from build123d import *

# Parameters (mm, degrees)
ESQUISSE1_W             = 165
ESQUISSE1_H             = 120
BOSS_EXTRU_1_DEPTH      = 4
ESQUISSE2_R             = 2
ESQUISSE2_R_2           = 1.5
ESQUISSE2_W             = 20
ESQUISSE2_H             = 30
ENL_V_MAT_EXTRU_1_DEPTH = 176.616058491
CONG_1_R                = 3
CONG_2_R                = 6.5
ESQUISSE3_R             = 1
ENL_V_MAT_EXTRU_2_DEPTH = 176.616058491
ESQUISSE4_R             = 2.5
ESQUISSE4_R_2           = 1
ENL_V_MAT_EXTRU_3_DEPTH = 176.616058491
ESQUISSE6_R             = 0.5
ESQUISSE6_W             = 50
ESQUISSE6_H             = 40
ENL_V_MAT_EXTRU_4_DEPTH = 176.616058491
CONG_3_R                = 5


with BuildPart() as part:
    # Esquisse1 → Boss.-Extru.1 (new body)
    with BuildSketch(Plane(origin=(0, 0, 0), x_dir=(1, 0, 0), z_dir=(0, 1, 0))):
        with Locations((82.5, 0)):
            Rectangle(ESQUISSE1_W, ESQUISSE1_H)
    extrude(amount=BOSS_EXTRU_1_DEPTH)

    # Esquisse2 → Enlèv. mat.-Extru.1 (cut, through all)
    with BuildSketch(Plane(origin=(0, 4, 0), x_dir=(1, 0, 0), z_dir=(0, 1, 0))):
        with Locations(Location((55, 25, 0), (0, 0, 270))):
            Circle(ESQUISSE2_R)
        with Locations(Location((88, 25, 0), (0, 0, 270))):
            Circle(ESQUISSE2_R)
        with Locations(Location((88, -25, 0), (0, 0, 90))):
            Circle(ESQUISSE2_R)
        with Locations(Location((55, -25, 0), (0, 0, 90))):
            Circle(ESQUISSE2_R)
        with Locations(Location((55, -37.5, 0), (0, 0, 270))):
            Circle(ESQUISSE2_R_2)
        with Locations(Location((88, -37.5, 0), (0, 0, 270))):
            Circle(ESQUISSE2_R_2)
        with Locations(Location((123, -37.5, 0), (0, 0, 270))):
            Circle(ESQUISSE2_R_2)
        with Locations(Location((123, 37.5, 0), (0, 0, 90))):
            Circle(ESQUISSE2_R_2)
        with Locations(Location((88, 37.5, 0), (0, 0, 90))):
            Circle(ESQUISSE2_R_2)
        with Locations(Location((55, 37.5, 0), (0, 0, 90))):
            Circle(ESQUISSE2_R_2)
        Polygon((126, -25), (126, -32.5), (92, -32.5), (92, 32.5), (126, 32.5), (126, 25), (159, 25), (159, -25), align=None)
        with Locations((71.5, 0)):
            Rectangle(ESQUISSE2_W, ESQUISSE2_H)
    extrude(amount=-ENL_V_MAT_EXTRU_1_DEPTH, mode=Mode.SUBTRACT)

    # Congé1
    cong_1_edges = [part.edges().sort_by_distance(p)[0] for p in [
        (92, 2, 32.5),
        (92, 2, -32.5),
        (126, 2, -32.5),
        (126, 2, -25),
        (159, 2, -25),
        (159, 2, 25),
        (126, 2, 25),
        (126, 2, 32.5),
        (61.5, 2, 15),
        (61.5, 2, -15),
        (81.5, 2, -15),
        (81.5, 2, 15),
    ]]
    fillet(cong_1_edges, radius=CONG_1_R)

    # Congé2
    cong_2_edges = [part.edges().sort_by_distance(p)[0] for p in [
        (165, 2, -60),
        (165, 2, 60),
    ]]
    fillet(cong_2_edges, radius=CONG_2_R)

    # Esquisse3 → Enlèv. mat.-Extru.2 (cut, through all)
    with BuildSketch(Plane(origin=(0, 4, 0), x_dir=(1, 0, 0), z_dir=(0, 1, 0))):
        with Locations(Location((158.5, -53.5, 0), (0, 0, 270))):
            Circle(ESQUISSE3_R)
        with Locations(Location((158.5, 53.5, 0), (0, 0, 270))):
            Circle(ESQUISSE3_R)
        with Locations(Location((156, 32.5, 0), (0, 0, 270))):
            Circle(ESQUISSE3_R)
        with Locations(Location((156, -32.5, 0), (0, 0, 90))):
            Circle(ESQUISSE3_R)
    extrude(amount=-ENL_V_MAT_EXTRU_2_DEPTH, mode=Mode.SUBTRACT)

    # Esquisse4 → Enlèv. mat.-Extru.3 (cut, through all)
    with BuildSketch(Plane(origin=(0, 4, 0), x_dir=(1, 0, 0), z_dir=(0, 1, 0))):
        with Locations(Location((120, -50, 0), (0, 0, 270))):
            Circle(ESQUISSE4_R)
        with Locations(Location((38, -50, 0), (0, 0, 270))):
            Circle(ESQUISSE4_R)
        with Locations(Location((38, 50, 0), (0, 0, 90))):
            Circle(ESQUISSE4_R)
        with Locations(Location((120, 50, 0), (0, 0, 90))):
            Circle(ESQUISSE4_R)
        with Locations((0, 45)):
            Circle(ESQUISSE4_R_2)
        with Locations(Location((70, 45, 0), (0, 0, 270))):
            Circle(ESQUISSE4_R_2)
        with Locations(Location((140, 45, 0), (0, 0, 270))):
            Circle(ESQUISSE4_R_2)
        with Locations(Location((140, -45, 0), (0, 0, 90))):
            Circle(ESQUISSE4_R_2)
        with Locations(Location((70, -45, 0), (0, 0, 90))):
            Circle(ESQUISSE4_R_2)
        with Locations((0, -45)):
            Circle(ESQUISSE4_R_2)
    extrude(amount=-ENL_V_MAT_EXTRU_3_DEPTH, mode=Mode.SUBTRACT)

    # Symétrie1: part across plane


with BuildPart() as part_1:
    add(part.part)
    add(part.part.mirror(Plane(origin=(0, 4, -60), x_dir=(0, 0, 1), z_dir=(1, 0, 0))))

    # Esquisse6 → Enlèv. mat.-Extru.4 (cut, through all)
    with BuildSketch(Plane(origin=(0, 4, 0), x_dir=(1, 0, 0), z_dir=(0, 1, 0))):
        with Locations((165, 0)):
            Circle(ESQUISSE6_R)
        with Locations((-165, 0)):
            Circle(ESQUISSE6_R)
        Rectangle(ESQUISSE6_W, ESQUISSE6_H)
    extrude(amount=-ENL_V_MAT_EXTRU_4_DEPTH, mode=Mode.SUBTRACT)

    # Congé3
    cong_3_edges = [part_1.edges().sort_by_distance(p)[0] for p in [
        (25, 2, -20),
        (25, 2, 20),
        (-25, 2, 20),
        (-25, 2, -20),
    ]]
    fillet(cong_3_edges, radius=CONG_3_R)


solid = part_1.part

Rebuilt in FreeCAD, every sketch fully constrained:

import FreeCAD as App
import Part
import Sketcher
from FreeCAD import Vector
Q = App.Units.Quantity


def edges_at(feature, points):
    """Names of the edges that pass closest to the given points."""
    edges = feature.Shape.Edges
    near = lambda p: min(range(len(edges)), key=lambda i: edges[i].distToShape(Part.Vertex(*p))[0])
    return sorted({f"Edge{near(p) + 1}" for p in points})

doc = App.newDocument("Part")
body = doc.addObject("PartDesign::Body", "Body")

# Sketch on XZ plane
sketch1 = body.newObject("Sketcher::SketchObject", "Sketch")
sketch1.AttachmentSupport = (doc.getObject("XZ_Plane"), [""])
sketch1.MapMode = "FlatFace"
sketch1.addGeometry(Part.LineSegment(Vector(0, -60, 0), Vector(0, 60, 0)), False)
sketch1.addGeometry(Part.LineSegment(Vector(0, 60, 0), Vector(165, 60, 0)), False)
sketch1.addGeometry(Part.LineSegment(Vector(165, 60, 0), Vector(165, -60, 0)), False)
sketch1.addGeometry(Part.LineSegment(Vector(165, -60, 0), Vector(0, -60, 0)), False)
sketch1.addConstraint(Sketcher.Constraint("Coincident", 0, 2, 1, 1))
sketch1.addConstraint(Sketcher.Constraint("Coincident", 1, 2, 2, 1))
sketch1.addConstraint(Sketcher.Constraint("Coincident", 2, 2, 3, 1))
sketch1.addConstraint(Sketcher.Constraint("Coincident", 3, 2, 0, 1))
sketch1.addConstraint(Sketcher.Constraint("Vertical", 0))
sketch1.addConstraint(Sketcher.Constraint("Horizontal", 1))
sketch1.addConstraint(Sketcher.Constraint("Vertical", 2))
sketch1.addConstraint(Sketcher.Constraint("Horizontal", 3))
sketch1.addConstraint(Sketcher.Constraint("Symmetric", 0, 2, 3, 2, -1, 1))
sketch1.addConstraint(Sketcher.Constraint("DistanceX", 1, 1, 1, 2, Q("165 mm")))
sketch1.addConstraint(Sketcher.Constraint("DistanceY", 0, 1, 0, 2, Q("120 mm")))
pad1 = body.newObject("PartDesign::Pad", "Pad")
pad1.Profile = sketch1
pad1.Length = 4
pad1.Reversed = True

# Sketch on XZ plane
sketch2 = body.newObject("Sketcher::SketchObject", "Sketch001")
sketch2.AttachmentSupport = (doc.getObject("XZ_Plane"), [""])
sketch2.MapMode = "FlatFace"
sketch2.AttachmentOffset = App.Placement(Vector(0, 0, -4), App.Rotation())
sketch2.addGeometry(Part.Circle(Vector(55, -25, 0), Vector(0, 0, 1), 2), False)
sketch2.addGeometry(Part.Circle(Vector(88, -25, 0), Vector(0, 0, 1), 2), False)
sketch2.addGeometry(Part.Circle(Vector(88, 25, 0), Vector(0, 0, 1), 2), False)
sketch2.addGeometry(Part.Circle(Vector(55, 25, 0), Vector(0, 0, 1), 2), False)
sketch2.addGeometry(Part.Circle(Vector(55, 37.5, 0), Vector(0, 0, 1), 1.5), False)
sketch2.addGeometry(Part.Circle(Vector(88, 37.5, 0), Vector(0, 0, 1), 1.5), False)
sketch2.addGeometry(Part.Circle(Vector(123, 37.5, 0), Vector(0, 0, 1), 1.5), False)
sketch2.addGeometry(Part.Circle(Vector(123, -37.5, 0), Vector(0, 0, 1), 1.5), False)
sketch2.addGeometry(Part.Circle(Vector(88, -37.5, 0), Vector(0, 0, 1), 1.5), False)
sketch2.addGeometry(Part.Circle(Vector(55, -37.5, 0), Vector(0, 0, 1), 1.5), False)
sketch2.addGeometry(Part.LineSegment(Vector(126, 32.5, 0), Vector(126, 25, 0)), False)
sketch2.addGeometry(Part.LineSegment(Vector(126, 25, 0), Vector(159, 25, 0)), False)
sketch2.addGeometry(Part.LineSegment(Vector(159, 25, 0), Vector(159, -25, 0)), False)
sketch2.addGeometry(Part.LineSegment(Vector(159, -25, 0), Vector(126, -25, 0)), False)
sketch2.addGeometry(Part.LineSegment(Vector(126, -25, 0), Vector(126, -32.5, 0)), False)
sketch2.addGeometry(Part.LineSegment(Vector(126, -32.5, 0), Vector(92, -32.5, 0)), False)
sketch2.addGeometry(Part.LineSegment(Vector(92, -32.5, 0), Vector(92, 32.5, 0)), False)
sketch2.addGeometry(Part.LineSegment(Vector(92, 32.5, 0), Vector(126, 32.5, 0)), False)
sketch2.addGeometry(Part.LineSegment(Vector(61.5, -15, 0), Vector(61.5, 15, 0)), False)
sketch2.addGeometry(Part.LineSegment(Vector(61.5, 15, 0), Vector(81.5, 15, 0)), False)
sketch2.addGeometry(Part.LineSegment(Vector(81.5, 15, 0), Vector(81.5, -15, 0)), False)
sketch2.addGeometry(Part.LineSegment(Vector(81.5, -15, 0), Vector(61.5, -15, 0)), False)
sketch2.addConstraint(Sketcher.Constraint("Coincident", 10, 2, 11, 1))
sketch2.addConstraint(Sketcher.Constraint("Coincident", 11, 2, 12, 1))
sketch2.addConstraint(Sketcher.Constraint("Coincident", 12, 2, 13, 1))
sketch2.addConstraint(Sketcher.Constraint("Coincident", 13, 2, 14, 1))
sketch2.addConstraint(Sketcher.Constraint("Coincident", 14, 2, 15, 1))
sketch2.addConstraint(Sketcher.Constraint("Coincident", 15, 2, 16, 1))
sketch2.addConstraint(Sketcher.Constraint("Coincident", 16, 2, 17, 1))
sketch2.addConstraint(Sketcher.Constraint("Coincident", 17, 2, 10, 1))
sketch2.addConstraint(Sketcher.Constraint("Coincident", 18, 2, 19, 1))
sketch2.addConstraint(Sketcher.Constraint("Coincident", 19, 2, 20, 1))
sketch2.addConstraint(Sketcher.Constraint("Coincident", 20, 2, 21, 1))
sketch2.addConstraint(Sketcher.Constraint("Coincident", 21, 2, 18, 1))
sketch2.addConstraint(Sketcher.Constraint("Vertical", 10))
sketch2.addConstraint(Sketcher.Constraint("Horizontal", 11))
sketch2.addConstraint(Sketcher.Constraint("Vertical", 12))
sketch2.addConstraint(Sketcher.Constraint("Horizontal", 13))
sketch2.addConstraint(Sketcher.Constraint("Vertical", 14))
sketch2.addConstraint(Sketcher.Constraint("Horizontal", 15))
sketch2.addConstraint(Sketcher.Constraint("Vertical", 16))
sketch2.addConstraint(Sketcher.Constraint("Horizontal", 17))
sketch2.addConstraint(Sketcher.Constraint("Vertical", 18))
sketch2.addConstraint(Sketcher.Constraint("Horizontal", 19))
sketch2.addConstraint(Sketcher.Constraint("Vertical", 20))
sketch2.addConstraint(Sketcher.Constraint("Horizontal", 21))
sketch2.addConstraint(Sketcher.Constraint("Equal", 0, 1))
sketch2.addConstraint(Sketcher.Constraint("Equal", 1, 2))
sketch2.addConstraint(Sketcher.Constraint("Equal", 2, 3))
sketch2.addConstraint(Sketcher.Constraint("Equal", 4, 5))
sketch2.addConstraint(Sketcher.Constraint("Equal", 5, 6))
sketch2.addConstraint(Sketcher.Constraint("Equal", 6, 7))
sketch2.addConstraint(Sketcher.Constraint("Equal", 7, 8))
sketch2.addConstraint(Sketcher.Constraint("Equal", 8, 9))
sketch2.addConstraint(Sketcher.Constraint("Symmetric", 1, 3, 2, 3, -1))
sketch2.addConstraint(Sketcher.Constraint("Symmetric", 0, 3, 3, 3, -1))
sketch2.addConstraint(Sketcher.Constraint("Symmetric", 6, 3, 7, 3, -1))
sketch2.addConstraint(Sketcher.Constraint("Symmetric", 5, 3, 8, 3, -1))
sketch2.addConstraint(Sketcher.Constraint("Symmetric", 4, 3, 9, 3, -1))
sketch2.addConstraint(Sketcher.Constraint("Symmetric", 10, 2, 13, 2, -1))
sketch2.addConstraint(Sketcher.Constraint("Horizontal", 0, 3, 1, 3))
sketch2.addConstraint(Sketcher.Constraint("Horizontal", 4, 3, 5, 3))
sketch2.addConstraint(Sketcher.Constraint("Horizontal", 5, 3, 6, 3))
sketch2.addConstraint(Sketcher.Constraint("Horizontal", 3, 3, 10, 2))
sketch2.addConstraint(Sketcher.Constraint("Vertical", 3, 3, 4, 3))
sketch2.addConstraint(Sketcher.Constraint("Vertical", 2, 3, 5, 3))
sketch2.addConstraint(Sketcher.Constraint("Equal", 10, 14))
sketch2.addConstraint(Sketcher.Constraint("Diameter", 0, Q("4 mm")))
sketch2.addConstraint(Sketcher.Constraint("Diameter", 4, Q("3 mm")))
sketch2.addConstraint(Sketcher.Constraint("DistanceX", 11, 1, 11, 2, Q("33 mm")))
sketch2.addConstraint(Sketcher.Constraint("DistanceX", 15, 2, 15, 1, Q("34 mm")))
sketch2.addConstraint(Sketcher.Constraint("DistanceX", 19, 1, 19, 2, Q("20 mm")))
sketch2.addConstraint(Sketcher.Constraint("DistanceY", 12, 2, 12, 1, Q("50 mm")))
sketch2.addConstraint(Sketcher.Constraint("DistanceY", 16, 1, 16, 2, Q("65 mm")))
sketch2.addConstraint(Sketcher.Constraint("DistanceY", 18, 1, 18, 2, Q("30 mm")))
sketch2.addConstraint(Sketcher.Constraint("DistanceX", -1, 1, 0, 3, Q("55 mm")))
sketch2.addConstraint(Sketcher.Constraint("DistanceX", -1, 1, 1, 3, Q("88 mm")))
sketch2.addConstraint(Sketcher.Constraint("DistanceX", -1, 1, 6, 3, Q("123 mm")))
sketch2.addConstraint(Sketcher.Constraint("DistanceX", -1, 1, 10, 2, Q("126 mm")))
sketch2.addConstraint(Sketcher.Constraint("DistanceY", -1, 1, 18, 2, Q("15 mm")))
sketch2.addConstraint(Sketcher.Constraint("DistanceY", 7, 3, 6, 3, Q("75 mm")))
sketch2.addConstraint(Sketcher.Constraint("DistanceX", -1, 1, 18, 2, Q("61.5 mm")))
pocket1 = body.newObject("PartDesign::Pocket", "Pocket")
pocket1.Profile = sketch2
pocket1.Type = "ThroughAll"
pocket1.Reversed = True
doc.recompute()

fillet = body.newObject("PartDesign::Fillet", "Fillet")
fillet.Base = (pocket1, edges_at(pocket1, [
    (92, 2, 32.5),
    (92, 2, -32.5),
    (126, 2, -32.5),
    (126, 2, -25),
    (159, 2, -25),
    (159, 2, 25),
    (126, 2, 25),
    (126, 2, 32.5),
    (61.5, 2, 15),
    (61.5, 2, -15),
    (81.5, 2, -15),
    (81.5, 2, 15),
]))
fillet.Radius = 3
doc.recompute()

fillet2 = body.newObject("PartDesign::Fillet", "Fillet001")
fillet2.Base = (fillet, edges_at(fillet, [(165, 2, -60), (165, 2, 60)]))
fillet2.Radius = 6.5

# Sketch on XZ plane
sketch3 = body.newObject("Sketcher::SketchObject", "Sketch002")
sketch3.AttachmentSupport = (doc.getObject("XZ_Plane"), [""])
sketch3.MapMode = "FlatFace"
sketch3.AttachmentOffset = App.Placement(Vector(0, 0, -4), App.Rotation())
sketch3.addGeometry(Part.Circle(Vector(158.5, 53.5, 0), Vector(0, 0, 1), 1), False)
sketch3.addGeometry(Part.Circle(Vector(158.5, -53.5, 0), Vector(0, 0, 1), 1), False)
sketch3.addGeometry(Part.Circle(Vector(156, -32.5, 0), Vector(0, 0, 1), 1), False)
sketch3.addGeometry(Part.Circle(Vector(156, 32.5, 0), Vector(0, 0, 1), 1), False)
sketch3.addConstraint(Sketcher.Constraint("Equal", 0, 1))
sketch3.addConstraint(Sketcher.Constraint("Equal", 1, 2))
sketch3.addConstraint(Sketcher.Constraint("Equal", 2, 3))
sketch3.addConstraint(Sketcher.Constraint("Symmetric", 0, 3, 1, 3, -1))
sketch3.addConstraint(Sketcher.Constraint("Symmetric", 2, 3, 3, 3, -1))
sketch3.addConstraint(Sketcher.Constraint("Diameter", 0, Q("2 mm")))
sketch3.addConstraint(Sketcher.Constraint("DistanceX", -1, 1, 2, 3, Q("156 mm")))
sketch3.addConstraint(Sketcher.Constraint("DistanceY", 1, 3, 0, 3, Q("107 mm")))
sketch3.addConstraint(Sketcher.Constraint("DistanceY", 1, 3, 2, 3, Q("21 mm")))
sketch3.addConstraint(Sketcher.Constraint("DistanceX", -1, 1, 0, 3, Q("158.5 mm")))
pocket2 = body.newObject("PartDesign::Pocket", "Pocket001")
pocket2.Profile = sketch3
pocket2.Type = "ThroughAll"
pocket2.Reversed = True

# Sketch on XZ plane
sketch4 = body.newObject("Sketcher::SketchObject", "Sketch003")
sketch4.AttachmentSupport = (doc.getObject("XZ_Plane"), [""])
sketch4.MapMode = "FlatFace"
sketch4.AttachmentOffset = App.Placement(Vector(0, 0, -4), App.Rotation())
sketch4.addGeometry(Part.Circle(Vector(120, 50, 0), Vector(0, 0, 1), 2.5), False)
sketch4.addGeometry(Part.Circle(Vector(38, 50, 0), Vector(0, 0, 1), 2.5), False)
sketch4.addGeometry(Part.Circle(Vector(38, -50, 0), Vector(0, 0, 1), 2.5), False)
sketch4.addGeometry(Part.Circle(Vector(120, -50, 0), Vector(0, 0, 1), 2.5), False)
sketch4.addGeometry(Part.Circle(Vector(0, -45, 0), Vector(0, 0, 1), 1), False)
sketch4.addGeometry(Part.Circle(Vector(70, -45, 0), Vector(0, 0, 1), 1), False)
sketch4.addGeometry(Part.Circle(Vector(140, -45, 0), Vector(0, 0, 1), 1), False)
sketch4.addGeometry(Part.Circle(Vector(140, 45, 0), Vector(0, 0, 1), 1), False)
sketch4.addGeometry(Part.Circle(Vector(70, 45, 0), Vector(0, 0, 1), 1), False)
sketch4.addGeometry(Part.Circle(Vector(0, 45, 0), Vector(0, 0, 1), 1), False)
sketch4.addConstraint(Sketcher.Constraint("Equal", 0, 1))
sketch4.addConstraint(Sketcher.Constraint("Equal", 1, 2))
sketch4.addConstraint(Sketcher.Constraint("Equal", 2, 3))
sketch4.addConstraint(Sketcher.Constraint("Equal", 4, 5))
sketch4.addConstraint(Sketcher.Constraint("Equal", 5, 6))
sketch4.addConstraint(Sketcher.Constraint("Equal", 6, 7))
sketch4.addConstraint(Sketcher.Constraint("Equal", 7, 8))
sketch4.addConstraint(Sketcher.Constraint("Equal", 8, 9))
sketch4.addConstraint(Sketcher.Constraint("Symmetric", 4, 3, 9, 3, -1, 1))
sketch4.addConstraint(Sketcher.Constraint("Symmetric", 1, 3, 2, 3, -1))
sketch4.addConstraint(Sketcher.Constraint("Symmetric", 0, 3, 3, 3, -1))
sketch4.addConstraint(Sketcher.Constraint("Symmetric", 6, 3, 7, 3, -1))
sketch4.addConstraint(Sketcher.Constraint("Symmetric", 5, 3, 8, 3, -1))
sketch4.addConstraint(Sketcher.Constraint("PointOnObject", 4, 3, -2))
sketch4.addConstraint(Sketcher.Constraint("Horizontal", 0, 3, 1, 3))
sketch4.addConstraint(Sketcher.Constraint("Horizontal", 4, 3, 5, 3))
sketch4.addConstraint(Sketcher.Constraint("Horizontal", 5, 3, 6, 3))
sketch4.addConstraint(Sketcher.Constraint("Diameter", 0, Q("5 mm")))
sketch4.addConstraint(Sketcher.Constraint("Diameter", 4, Q("2 mm")))
sketch4.addConstraint(Sketcher.Constraint("DistanceX", -1, 1, 0, 3, Q("120 mm")))
sketch4.addConstraint(Sketcher.Constraint("DistanceY", -1, 1, 0, 3, Q("50 mm")))
sketch4.addConstraint(Sketcher.Constraint("DistanceX", -1, 1, 1, 3, Q("38 mm")))
sketch4.addConstraint(Sketcher.Constraint("DistanceY", 4, 3, -1, 1, Q("45 mm")))
sketch4.addConstraint(Sketcher.Constraint("DistanceX", -1, 1, 5, 3, Q("70 mm")))
sketch4.addConstraint(Sketcher.Constraint("DistanceX", -1, 1, 6, 3, Q("140 mm")))
pocket3 = body.newObject("PartDesign::Pocket", "Pocket002")
pocket3.Profile = sketch4
pocket3.Type = "ThroughAll"
pocket3.Reversed = True
body2 = doc.addObject("PartDesign::Body", "Body001")
doc.recompute()

body2.BaseFeature = body
doc.recompute()

mirroring = doc.addObject("Part::Mirroring", "Mirroring")
mirroring.Source = body
mirroring.Base = Vector(0, 4, -60)
mirroring.Normal = Vector(1, 0, 0)
body3 = doc.addObject("PartDesign::Body", "Body002")
body3.BaseFeature = mirroring
boolean = body2.newObject("PartDesign::Boolean", "Boolean")
boolean.Type = "Fuse"
boolean.addObjects([body3])
doc.recompute()

# Sketch on XZ plane
sketch5 = body2.newObject("Sketcher::SketchObject", "Sketch004")
sketch5.AttachmentSupport = (doc.getObject("XZ_Plane001"), [""])
sketch5.MapMode = "FlatFace"
sketch5.AttachmentOffset = App.Placement(Vector(0, 0, -4), App.Rotation())
sketch5.addGeometry(Part.Circle(Vector(165, 0, 0), Vector(0, 0, 1), 0.5), False)
sketch5.addGeometry(Part.Circle(Vector(-165, 0, 0), Vector(0, 0, 1), 0.5), False)
sketch5.addGeometry(Part.LineSegment(Vector(-25, -20, 0), Vector(-25, 20, 0)), False)
sketch5.addGeometry(Part.LineSegment(Vector(-25, 20, 0), Vector(25, 20, 0)), False)
sketch5.addGeometry(Part.LineSegment(Vector(25, 20, 0), Vector(25, -20, 0)), False)
sketch5.addGeometry(Part.LineSegment(Vector(25, -20, 0), Vector(-25, -20, 0)), False)
sketch5.addConstraint(Sketcher.Constraint("Coincident", 2, 2, 3, 1))
sketch5.addConstraint(Sketcher.Constraint("Coincident", 3, 2, 4, 1))
sketch5.addConstraint(Sketcher.Constraint("Coincident", 4, 2, 5, 1))
sketch5.addConstraint(Sketcher.Constraint("Coincident", 5, 2, 2, 1))
sketch5.addConstraint(Sketcher.Constraint("Vertical", 2))
sketch5.addConstraint(Sketcher.Constraint("Horizontal", 3))
sketch5.addConstraint(Sketcher.Constraint("Vertical", 4))
sketch5.addConstraint(Sketcher.Constraint("Horizontal", 5))
sketch5.addConstraint(Sketcher.Constraint("Equal", 0, 1))
sketch5.addConstraint(Sketcher.Constraint("Symmetric", 0, 3, 1, 3, -1, 1))
sketch5.addConstraint(Sketcher.Constraint("Symmetric", 2, 2, 4, 2, -1, 1))
sketch5.addConstraint(Sketcher.Constraint("PointOnObject", 0, 3, -1))
sketch5.addConstraint(Sketcher.Constraint("Diameter", 0, Q("1 mm")))
sketch5.addConstraint(Sketcher.Constraint("DistanceX", 3, 1, 3, 2, Q("50 mm")))
sketch5.addConstraint(Sketcher.Constraint("DistanceY", 2, 1, 2, 2, Q("40 mm")))
sketch5.addConstraint(Sketcher.Constraint("DistanceX", -1, 1, 0, 3, Q("165 mm")))
pocket4 = body2.newObject("PartDesign::Pocket", "Pocket003")
pocket4.Profile = sketch5
pocket4.Type = "ThroughAll"
pocket4.Reversed = True
doc.recompute()

fillet3 = body2.newObject("PartDesign::Fillet", "Fillet002")
fillet3.Base = (pocket4, edges_at(pocket4, [
    (25, 2, -20),
    (25, 2, 20),
    (-25, 2, 20),
    (-25, 2, -20),
]))
fillet3.Radius = 5
mirroring.Visibility = False

doc.recompute()
